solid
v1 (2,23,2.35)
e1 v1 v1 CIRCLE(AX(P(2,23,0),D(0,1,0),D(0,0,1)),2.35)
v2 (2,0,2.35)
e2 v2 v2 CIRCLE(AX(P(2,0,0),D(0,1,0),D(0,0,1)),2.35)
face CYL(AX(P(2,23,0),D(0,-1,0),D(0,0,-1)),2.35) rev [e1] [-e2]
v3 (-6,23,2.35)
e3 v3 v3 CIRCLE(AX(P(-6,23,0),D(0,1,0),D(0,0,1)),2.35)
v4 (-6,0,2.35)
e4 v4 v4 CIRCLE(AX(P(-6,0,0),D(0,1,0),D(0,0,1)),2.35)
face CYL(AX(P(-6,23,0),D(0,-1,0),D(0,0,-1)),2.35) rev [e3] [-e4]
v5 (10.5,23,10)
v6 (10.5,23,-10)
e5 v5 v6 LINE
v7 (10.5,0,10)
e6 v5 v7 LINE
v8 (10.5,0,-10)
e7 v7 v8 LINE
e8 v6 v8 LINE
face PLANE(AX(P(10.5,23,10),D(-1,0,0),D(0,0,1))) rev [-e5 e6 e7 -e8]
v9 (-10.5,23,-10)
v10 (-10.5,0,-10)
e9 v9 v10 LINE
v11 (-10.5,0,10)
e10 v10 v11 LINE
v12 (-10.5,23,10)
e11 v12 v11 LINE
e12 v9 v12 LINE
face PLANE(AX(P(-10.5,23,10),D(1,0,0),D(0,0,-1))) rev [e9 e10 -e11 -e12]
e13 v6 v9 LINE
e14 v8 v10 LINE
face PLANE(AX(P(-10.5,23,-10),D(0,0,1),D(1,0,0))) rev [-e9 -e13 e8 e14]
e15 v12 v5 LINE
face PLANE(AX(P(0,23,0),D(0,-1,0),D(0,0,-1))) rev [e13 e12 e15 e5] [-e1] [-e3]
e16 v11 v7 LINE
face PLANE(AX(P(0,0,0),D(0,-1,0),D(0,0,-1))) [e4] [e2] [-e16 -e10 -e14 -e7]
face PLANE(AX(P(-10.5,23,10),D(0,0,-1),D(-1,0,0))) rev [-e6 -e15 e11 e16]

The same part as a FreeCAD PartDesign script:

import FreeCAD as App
import Part
import Sketcher
Q = App.Units.Quantity

doc = App.newDocument("Part")
params = doc.addObject("Spreadsheet::Sheet", "Params")
for row, (alias, value) in enumerate([
    ("sketch1_diameter", "4.7 mm"),
    ("sketch1_width", "21 mm"),
    ("sketch1_height", "20 mm"),
    ("pad1_length", "23 mm"),
], start=1):
    params.set(f"A{row}", alias)
    params.set(f"B{row}", "=" + value)
    params.setAlias(f"B{row}", alias)

body = doc.addObject("PartDesign::Body", "Body")

# Sketch on XZ plane
sketch1 = body.newObject("Sketcher::SketchObject", "Sketch")
sketch1.AttachmentSupport = (doc.getObject("XZ_Plane"), [""])
sketch1.MapMode = "FlatFace"
sketch1.addGeometry(Part.LineSegment(App.Vector(-10.5, -10, 0), App.Vector(-10.5, 10, 0)), False)
sketch1.addGeometry(Part.LineSegment(App.Vector(-10.5, 10, 0), App.Vector(10.5, 10, 0)), False)
sketch1.addGeometry(Part.LineSegment(App.Vector(10.5, 10, 0), App.Vector(10.5, -10, 0)), False)
sketch1.addGeometry(Part.LineSegment(App.Vector(10.5, -10, 0), App.Vector(-10.5, -10, 0)), False)
sketch1.addGeometry(Part.Circle(App.Vector(-6, 0, 0), App.Vector(0, 0, 1), 2.35), False)
sketch1.addGeometry(Part.Circle(App.Vector(2, 0, 0), App.Vector(0, 0, 1), 2.35), False)
sketch1.addConstraint(Sketcher.Constraint("Coincident", 0, 2, 1, 1))
sketch1.addConstraint(Sketcher.Constraint("Coincident", 1, 2, 2, 1))
sketch1.addConstraint(Sketcher.Constraint("Coincident", 2, 2, 3, 1))
sketch1.addConstraint(Sketcher.Constraint("Coincident", 3, 2, 0, 1))
sketch1.addConstraint(Sketcher.Constraint("Vertical", 0))
sketch1.addConstraint(Sketcher.Constraint("Horizontal", 1))
sketch1.addConstraint(Sketcher.Constraint("Vertical", 2))
sketch1.addConstraint(Sketcher.Constraint("Horizontal", 3))
sketch1.addConstraint(Sketcher.Constraint("Equal", 4, 5))
sketch1.addConstraint(Sketcher.Constraint("Symmetric", 0, 2, 2, 2, -1, 1))
sketch1.addConstraint(Sketcher.Constraint("PointOnObject", 4, 3, -1))
sketch1.addConstraint(Sketcher.Constraint("PointOnObject", 5, 3, -1))
sketch1.addConstraint(Sketcher.Constraint("Diameter", 4, Q("4.7 mm")))
sketch1.addConstraint(Sketcher.Constraint("DistanceX", 1, 1, 1, 2, Q("21 mm")))
sketch1.addConstraint(Sketcher.Constraint("DistanceY", 0, 1, 0, 2, Q("20 mm")))
sketch1.addConstraint(Sketcher.Constraint("DistanceX", 4, 3, -1, 1, Q("6 mm")))
sketch1.addConstraint(Sketcher.Constraint("DistanceX", -1, 1, 5, 3, Q("2 mm")))
sketch1.setExpression("Constraints[12]", "Params.sketch1_diameter")
sketch1.setExpression("Constraints[13]", "Params.sketch1_width")
sketch1.setExpression("Constraints[14]", "Params.sketch1_height")
pad1 = body.newObject("PartDesign::Pad", "Pad")
pad1.Profile = sketch1
pad1.setExpression("Length", "Params.pad1_length")
pad1.Reversed = True

doc.recompute()
